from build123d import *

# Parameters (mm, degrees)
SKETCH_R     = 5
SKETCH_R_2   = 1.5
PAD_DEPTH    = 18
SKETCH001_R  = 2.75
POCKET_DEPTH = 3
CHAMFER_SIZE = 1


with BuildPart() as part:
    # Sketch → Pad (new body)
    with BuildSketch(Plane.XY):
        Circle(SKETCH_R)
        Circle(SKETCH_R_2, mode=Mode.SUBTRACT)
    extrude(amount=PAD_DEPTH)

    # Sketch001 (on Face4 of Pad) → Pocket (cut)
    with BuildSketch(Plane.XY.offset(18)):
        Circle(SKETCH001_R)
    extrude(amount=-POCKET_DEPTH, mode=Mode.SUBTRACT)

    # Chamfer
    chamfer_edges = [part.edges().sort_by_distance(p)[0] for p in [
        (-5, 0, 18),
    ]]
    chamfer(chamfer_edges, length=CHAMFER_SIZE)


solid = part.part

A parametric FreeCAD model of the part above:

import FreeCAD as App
import Part
import Sketcher

V = App.Vector
Q = App.Units.Quantity


def edges_at(feature, points):
    """Names of the edges that pass closest to the given points."""
    edges = feature.Shape.Edges
    near = lambda p: min(range(len(edges)), key=lambda i: edges[i].distToShape(Part.Vertex(*p))[0])
    return sorted({f"Edge{near(p) + 1}" for p in points})

doc = App.newDocument("Part")
params = doc.addObject("Spreadsheet::Sheet", "Params")
for row, (alias, value) in enumerate([
    ("sketch1_diameter", "10 mm"),
    ("sketch1_diameter2", "3 mm"),
    ("pad1_length", "18 mm"),
    ("sketch2_diameter", "5.5 mm"),
    ("pocket1_length", "3 mm"),
    ("chamfer_size", "1 mm"),
], start=1):
    params.set(f"A{row}", alias)
    params.set(f"B{row}", "=" + value)
    params.setAlias(f"B{row}", alias)

body = doc.addObject("PartDesign::Body", "Body")

sketch1 = body.newObject("Sketcher::SketchObject", "Sketch")
sketch1.AttachmentSupport = (doc.getObject("XY_Plane"), [""])
sketch1.MapMode = "FlatFace"
sketch1.addGeometry(Part.Circle(V(0, 0, 0), V(0, 0, 1), 5), False)
sketch1.addGeometry(Part.Circle(V(0, 0, 0), V(0, 0, 1), 1.5), False)
sketch1.addConstraint(Sketcher.Constraint("Coincident", 0, 3, -1, 1))
sketch1.addConstraint(Sketcher.Constraint("Coincident", 1, 3, -1, 1))
sketch1.addConstraint(Sketcher.Constraint("Diameter", 0, Q("10 mm")))
sketch1.addConstraint(Sketcher.Constraint("Diameter", 1, Q("3 mm")))
sketch1.setExpression("Constraints[2]", "Params.sketch1_diameter")
sketch1.setExpression("Constraints[3]", "Params.sketch1_diameter2")
pad1 = body.newObject("PartDesign::Pad", "Pad")
pad1.Profile = sketch1
pad1.setExpression("Length", "Params.pad1_length")

sketch2 = body.newObject("Sketcher::SketchObject", "Sketch001")
sketch2.AttachmentSupport = (doc.getObject("XY_Plane"), [""])
sketch2.MapMode = "FlatFace"
sketch2.AttachmentOffset = App.Placement(V(0, 0, 18), App.Rotation())
sketch2.addGeometry(Part.Circle(V(0, 0, 0), V(0, 0, 1), 2.8), False)
sketch2.addConstraint(Sketcher.Constraint("Coincident", 0, 3, -1, 1))
sketch2.addConstraint(Sketcher.Constraint("Diameter", 0, Q("5.5 mm")))
sketch2.setExpression("Constraints[1]", "Params.sketch2_diameter")
pocket1 = body.newObject("PartDesign::Pocket", "Pocket")
pocket1.Profile = sketch2
pocket1.setExpression("Length", "Params.pocket1_length")
doc.recompute()

chamfer = body.newObject("PartDesign::Chamfer", "Chamfer")
chamfer.Base = (pocket1, edges_at(pocket1, [(-5, 0, 18)]))
chamfer.setExpression("Size", "Params.chamfer_size")

doc.recompute()
